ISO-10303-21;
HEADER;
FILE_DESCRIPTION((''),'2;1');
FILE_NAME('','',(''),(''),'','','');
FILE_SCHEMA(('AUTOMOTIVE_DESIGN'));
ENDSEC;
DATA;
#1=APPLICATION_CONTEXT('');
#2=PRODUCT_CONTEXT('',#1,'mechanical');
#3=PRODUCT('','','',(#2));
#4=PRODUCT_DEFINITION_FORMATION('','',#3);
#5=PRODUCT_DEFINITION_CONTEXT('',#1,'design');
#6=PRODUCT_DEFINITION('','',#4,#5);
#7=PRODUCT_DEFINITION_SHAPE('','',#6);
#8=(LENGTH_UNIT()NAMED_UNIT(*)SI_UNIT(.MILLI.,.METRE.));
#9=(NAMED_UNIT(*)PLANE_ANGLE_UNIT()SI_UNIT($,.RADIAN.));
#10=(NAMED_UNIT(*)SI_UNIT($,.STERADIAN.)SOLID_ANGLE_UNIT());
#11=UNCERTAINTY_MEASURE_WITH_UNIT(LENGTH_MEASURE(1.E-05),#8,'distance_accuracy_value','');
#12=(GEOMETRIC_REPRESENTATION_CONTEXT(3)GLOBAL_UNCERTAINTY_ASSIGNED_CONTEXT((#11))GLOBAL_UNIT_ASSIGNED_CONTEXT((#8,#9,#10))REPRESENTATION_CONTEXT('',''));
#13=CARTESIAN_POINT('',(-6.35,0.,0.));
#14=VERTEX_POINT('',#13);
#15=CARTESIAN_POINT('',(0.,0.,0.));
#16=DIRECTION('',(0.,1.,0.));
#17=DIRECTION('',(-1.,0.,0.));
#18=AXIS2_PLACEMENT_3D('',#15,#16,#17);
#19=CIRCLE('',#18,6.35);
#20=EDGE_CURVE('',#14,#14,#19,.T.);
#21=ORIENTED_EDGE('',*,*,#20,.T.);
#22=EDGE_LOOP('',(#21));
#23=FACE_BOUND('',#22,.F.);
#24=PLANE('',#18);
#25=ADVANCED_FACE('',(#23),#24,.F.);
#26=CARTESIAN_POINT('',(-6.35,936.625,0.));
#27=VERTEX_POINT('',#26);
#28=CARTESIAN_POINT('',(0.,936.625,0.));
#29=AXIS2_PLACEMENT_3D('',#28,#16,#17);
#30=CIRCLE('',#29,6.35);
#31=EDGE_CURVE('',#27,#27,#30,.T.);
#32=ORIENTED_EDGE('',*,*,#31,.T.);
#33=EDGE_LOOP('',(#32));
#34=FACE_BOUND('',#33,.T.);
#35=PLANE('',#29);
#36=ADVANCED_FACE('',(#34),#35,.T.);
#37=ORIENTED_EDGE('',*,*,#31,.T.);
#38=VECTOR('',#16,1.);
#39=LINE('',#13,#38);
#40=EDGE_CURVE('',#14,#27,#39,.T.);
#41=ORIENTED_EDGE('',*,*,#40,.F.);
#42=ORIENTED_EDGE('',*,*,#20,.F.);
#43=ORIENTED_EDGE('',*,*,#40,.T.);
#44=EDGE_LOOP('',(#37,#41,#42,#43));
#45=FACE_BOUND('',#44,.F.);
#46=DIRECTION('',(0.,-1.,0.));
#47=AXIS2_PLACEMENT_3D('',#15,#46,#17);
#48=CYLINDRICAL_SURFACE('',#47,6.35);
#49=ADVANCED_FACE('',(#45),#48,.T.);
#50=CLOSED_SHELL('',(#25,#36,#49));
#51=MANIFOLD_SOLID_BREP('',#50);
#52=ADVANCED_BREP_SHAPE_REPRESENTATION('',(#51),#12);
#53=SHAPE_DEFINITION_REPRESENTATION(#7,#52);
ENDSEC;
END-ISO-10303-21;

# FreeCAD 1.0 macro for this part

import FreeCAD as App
import Part
import Sketcher
from FreeCAD import Vector
Q = App.Units.Quantity

doc = App.newDocument("Part")
body = doc.addObject("PartDesign::Body", "Body")

sketch1 = body.newObject("Sketcher::SketchObject", "Sketch")
sketch1.AttachmentSupport = (doc.getObject("XZ_Plane"), [""])
sketch1.MapMode = "FlatFace"
sketch1.addGeometry(Part.Circle(Vector(0, 0, 0), Vector(0, 0, 1), 6), False)
sketch1.addConstraint([
    Sketcher.Constraint("Coincident", 0, 3, -1, 1),
    Sketcher.Constraint("Diameter", 0, Q("0.5 in")),
])
pad1 = body.newObject("PartDesign::Pad", "Pad")
pad1.Profile = sketch1
pad1.Length = Q("36.875 in")
pad1.Reversed = True

doc.recompute()
